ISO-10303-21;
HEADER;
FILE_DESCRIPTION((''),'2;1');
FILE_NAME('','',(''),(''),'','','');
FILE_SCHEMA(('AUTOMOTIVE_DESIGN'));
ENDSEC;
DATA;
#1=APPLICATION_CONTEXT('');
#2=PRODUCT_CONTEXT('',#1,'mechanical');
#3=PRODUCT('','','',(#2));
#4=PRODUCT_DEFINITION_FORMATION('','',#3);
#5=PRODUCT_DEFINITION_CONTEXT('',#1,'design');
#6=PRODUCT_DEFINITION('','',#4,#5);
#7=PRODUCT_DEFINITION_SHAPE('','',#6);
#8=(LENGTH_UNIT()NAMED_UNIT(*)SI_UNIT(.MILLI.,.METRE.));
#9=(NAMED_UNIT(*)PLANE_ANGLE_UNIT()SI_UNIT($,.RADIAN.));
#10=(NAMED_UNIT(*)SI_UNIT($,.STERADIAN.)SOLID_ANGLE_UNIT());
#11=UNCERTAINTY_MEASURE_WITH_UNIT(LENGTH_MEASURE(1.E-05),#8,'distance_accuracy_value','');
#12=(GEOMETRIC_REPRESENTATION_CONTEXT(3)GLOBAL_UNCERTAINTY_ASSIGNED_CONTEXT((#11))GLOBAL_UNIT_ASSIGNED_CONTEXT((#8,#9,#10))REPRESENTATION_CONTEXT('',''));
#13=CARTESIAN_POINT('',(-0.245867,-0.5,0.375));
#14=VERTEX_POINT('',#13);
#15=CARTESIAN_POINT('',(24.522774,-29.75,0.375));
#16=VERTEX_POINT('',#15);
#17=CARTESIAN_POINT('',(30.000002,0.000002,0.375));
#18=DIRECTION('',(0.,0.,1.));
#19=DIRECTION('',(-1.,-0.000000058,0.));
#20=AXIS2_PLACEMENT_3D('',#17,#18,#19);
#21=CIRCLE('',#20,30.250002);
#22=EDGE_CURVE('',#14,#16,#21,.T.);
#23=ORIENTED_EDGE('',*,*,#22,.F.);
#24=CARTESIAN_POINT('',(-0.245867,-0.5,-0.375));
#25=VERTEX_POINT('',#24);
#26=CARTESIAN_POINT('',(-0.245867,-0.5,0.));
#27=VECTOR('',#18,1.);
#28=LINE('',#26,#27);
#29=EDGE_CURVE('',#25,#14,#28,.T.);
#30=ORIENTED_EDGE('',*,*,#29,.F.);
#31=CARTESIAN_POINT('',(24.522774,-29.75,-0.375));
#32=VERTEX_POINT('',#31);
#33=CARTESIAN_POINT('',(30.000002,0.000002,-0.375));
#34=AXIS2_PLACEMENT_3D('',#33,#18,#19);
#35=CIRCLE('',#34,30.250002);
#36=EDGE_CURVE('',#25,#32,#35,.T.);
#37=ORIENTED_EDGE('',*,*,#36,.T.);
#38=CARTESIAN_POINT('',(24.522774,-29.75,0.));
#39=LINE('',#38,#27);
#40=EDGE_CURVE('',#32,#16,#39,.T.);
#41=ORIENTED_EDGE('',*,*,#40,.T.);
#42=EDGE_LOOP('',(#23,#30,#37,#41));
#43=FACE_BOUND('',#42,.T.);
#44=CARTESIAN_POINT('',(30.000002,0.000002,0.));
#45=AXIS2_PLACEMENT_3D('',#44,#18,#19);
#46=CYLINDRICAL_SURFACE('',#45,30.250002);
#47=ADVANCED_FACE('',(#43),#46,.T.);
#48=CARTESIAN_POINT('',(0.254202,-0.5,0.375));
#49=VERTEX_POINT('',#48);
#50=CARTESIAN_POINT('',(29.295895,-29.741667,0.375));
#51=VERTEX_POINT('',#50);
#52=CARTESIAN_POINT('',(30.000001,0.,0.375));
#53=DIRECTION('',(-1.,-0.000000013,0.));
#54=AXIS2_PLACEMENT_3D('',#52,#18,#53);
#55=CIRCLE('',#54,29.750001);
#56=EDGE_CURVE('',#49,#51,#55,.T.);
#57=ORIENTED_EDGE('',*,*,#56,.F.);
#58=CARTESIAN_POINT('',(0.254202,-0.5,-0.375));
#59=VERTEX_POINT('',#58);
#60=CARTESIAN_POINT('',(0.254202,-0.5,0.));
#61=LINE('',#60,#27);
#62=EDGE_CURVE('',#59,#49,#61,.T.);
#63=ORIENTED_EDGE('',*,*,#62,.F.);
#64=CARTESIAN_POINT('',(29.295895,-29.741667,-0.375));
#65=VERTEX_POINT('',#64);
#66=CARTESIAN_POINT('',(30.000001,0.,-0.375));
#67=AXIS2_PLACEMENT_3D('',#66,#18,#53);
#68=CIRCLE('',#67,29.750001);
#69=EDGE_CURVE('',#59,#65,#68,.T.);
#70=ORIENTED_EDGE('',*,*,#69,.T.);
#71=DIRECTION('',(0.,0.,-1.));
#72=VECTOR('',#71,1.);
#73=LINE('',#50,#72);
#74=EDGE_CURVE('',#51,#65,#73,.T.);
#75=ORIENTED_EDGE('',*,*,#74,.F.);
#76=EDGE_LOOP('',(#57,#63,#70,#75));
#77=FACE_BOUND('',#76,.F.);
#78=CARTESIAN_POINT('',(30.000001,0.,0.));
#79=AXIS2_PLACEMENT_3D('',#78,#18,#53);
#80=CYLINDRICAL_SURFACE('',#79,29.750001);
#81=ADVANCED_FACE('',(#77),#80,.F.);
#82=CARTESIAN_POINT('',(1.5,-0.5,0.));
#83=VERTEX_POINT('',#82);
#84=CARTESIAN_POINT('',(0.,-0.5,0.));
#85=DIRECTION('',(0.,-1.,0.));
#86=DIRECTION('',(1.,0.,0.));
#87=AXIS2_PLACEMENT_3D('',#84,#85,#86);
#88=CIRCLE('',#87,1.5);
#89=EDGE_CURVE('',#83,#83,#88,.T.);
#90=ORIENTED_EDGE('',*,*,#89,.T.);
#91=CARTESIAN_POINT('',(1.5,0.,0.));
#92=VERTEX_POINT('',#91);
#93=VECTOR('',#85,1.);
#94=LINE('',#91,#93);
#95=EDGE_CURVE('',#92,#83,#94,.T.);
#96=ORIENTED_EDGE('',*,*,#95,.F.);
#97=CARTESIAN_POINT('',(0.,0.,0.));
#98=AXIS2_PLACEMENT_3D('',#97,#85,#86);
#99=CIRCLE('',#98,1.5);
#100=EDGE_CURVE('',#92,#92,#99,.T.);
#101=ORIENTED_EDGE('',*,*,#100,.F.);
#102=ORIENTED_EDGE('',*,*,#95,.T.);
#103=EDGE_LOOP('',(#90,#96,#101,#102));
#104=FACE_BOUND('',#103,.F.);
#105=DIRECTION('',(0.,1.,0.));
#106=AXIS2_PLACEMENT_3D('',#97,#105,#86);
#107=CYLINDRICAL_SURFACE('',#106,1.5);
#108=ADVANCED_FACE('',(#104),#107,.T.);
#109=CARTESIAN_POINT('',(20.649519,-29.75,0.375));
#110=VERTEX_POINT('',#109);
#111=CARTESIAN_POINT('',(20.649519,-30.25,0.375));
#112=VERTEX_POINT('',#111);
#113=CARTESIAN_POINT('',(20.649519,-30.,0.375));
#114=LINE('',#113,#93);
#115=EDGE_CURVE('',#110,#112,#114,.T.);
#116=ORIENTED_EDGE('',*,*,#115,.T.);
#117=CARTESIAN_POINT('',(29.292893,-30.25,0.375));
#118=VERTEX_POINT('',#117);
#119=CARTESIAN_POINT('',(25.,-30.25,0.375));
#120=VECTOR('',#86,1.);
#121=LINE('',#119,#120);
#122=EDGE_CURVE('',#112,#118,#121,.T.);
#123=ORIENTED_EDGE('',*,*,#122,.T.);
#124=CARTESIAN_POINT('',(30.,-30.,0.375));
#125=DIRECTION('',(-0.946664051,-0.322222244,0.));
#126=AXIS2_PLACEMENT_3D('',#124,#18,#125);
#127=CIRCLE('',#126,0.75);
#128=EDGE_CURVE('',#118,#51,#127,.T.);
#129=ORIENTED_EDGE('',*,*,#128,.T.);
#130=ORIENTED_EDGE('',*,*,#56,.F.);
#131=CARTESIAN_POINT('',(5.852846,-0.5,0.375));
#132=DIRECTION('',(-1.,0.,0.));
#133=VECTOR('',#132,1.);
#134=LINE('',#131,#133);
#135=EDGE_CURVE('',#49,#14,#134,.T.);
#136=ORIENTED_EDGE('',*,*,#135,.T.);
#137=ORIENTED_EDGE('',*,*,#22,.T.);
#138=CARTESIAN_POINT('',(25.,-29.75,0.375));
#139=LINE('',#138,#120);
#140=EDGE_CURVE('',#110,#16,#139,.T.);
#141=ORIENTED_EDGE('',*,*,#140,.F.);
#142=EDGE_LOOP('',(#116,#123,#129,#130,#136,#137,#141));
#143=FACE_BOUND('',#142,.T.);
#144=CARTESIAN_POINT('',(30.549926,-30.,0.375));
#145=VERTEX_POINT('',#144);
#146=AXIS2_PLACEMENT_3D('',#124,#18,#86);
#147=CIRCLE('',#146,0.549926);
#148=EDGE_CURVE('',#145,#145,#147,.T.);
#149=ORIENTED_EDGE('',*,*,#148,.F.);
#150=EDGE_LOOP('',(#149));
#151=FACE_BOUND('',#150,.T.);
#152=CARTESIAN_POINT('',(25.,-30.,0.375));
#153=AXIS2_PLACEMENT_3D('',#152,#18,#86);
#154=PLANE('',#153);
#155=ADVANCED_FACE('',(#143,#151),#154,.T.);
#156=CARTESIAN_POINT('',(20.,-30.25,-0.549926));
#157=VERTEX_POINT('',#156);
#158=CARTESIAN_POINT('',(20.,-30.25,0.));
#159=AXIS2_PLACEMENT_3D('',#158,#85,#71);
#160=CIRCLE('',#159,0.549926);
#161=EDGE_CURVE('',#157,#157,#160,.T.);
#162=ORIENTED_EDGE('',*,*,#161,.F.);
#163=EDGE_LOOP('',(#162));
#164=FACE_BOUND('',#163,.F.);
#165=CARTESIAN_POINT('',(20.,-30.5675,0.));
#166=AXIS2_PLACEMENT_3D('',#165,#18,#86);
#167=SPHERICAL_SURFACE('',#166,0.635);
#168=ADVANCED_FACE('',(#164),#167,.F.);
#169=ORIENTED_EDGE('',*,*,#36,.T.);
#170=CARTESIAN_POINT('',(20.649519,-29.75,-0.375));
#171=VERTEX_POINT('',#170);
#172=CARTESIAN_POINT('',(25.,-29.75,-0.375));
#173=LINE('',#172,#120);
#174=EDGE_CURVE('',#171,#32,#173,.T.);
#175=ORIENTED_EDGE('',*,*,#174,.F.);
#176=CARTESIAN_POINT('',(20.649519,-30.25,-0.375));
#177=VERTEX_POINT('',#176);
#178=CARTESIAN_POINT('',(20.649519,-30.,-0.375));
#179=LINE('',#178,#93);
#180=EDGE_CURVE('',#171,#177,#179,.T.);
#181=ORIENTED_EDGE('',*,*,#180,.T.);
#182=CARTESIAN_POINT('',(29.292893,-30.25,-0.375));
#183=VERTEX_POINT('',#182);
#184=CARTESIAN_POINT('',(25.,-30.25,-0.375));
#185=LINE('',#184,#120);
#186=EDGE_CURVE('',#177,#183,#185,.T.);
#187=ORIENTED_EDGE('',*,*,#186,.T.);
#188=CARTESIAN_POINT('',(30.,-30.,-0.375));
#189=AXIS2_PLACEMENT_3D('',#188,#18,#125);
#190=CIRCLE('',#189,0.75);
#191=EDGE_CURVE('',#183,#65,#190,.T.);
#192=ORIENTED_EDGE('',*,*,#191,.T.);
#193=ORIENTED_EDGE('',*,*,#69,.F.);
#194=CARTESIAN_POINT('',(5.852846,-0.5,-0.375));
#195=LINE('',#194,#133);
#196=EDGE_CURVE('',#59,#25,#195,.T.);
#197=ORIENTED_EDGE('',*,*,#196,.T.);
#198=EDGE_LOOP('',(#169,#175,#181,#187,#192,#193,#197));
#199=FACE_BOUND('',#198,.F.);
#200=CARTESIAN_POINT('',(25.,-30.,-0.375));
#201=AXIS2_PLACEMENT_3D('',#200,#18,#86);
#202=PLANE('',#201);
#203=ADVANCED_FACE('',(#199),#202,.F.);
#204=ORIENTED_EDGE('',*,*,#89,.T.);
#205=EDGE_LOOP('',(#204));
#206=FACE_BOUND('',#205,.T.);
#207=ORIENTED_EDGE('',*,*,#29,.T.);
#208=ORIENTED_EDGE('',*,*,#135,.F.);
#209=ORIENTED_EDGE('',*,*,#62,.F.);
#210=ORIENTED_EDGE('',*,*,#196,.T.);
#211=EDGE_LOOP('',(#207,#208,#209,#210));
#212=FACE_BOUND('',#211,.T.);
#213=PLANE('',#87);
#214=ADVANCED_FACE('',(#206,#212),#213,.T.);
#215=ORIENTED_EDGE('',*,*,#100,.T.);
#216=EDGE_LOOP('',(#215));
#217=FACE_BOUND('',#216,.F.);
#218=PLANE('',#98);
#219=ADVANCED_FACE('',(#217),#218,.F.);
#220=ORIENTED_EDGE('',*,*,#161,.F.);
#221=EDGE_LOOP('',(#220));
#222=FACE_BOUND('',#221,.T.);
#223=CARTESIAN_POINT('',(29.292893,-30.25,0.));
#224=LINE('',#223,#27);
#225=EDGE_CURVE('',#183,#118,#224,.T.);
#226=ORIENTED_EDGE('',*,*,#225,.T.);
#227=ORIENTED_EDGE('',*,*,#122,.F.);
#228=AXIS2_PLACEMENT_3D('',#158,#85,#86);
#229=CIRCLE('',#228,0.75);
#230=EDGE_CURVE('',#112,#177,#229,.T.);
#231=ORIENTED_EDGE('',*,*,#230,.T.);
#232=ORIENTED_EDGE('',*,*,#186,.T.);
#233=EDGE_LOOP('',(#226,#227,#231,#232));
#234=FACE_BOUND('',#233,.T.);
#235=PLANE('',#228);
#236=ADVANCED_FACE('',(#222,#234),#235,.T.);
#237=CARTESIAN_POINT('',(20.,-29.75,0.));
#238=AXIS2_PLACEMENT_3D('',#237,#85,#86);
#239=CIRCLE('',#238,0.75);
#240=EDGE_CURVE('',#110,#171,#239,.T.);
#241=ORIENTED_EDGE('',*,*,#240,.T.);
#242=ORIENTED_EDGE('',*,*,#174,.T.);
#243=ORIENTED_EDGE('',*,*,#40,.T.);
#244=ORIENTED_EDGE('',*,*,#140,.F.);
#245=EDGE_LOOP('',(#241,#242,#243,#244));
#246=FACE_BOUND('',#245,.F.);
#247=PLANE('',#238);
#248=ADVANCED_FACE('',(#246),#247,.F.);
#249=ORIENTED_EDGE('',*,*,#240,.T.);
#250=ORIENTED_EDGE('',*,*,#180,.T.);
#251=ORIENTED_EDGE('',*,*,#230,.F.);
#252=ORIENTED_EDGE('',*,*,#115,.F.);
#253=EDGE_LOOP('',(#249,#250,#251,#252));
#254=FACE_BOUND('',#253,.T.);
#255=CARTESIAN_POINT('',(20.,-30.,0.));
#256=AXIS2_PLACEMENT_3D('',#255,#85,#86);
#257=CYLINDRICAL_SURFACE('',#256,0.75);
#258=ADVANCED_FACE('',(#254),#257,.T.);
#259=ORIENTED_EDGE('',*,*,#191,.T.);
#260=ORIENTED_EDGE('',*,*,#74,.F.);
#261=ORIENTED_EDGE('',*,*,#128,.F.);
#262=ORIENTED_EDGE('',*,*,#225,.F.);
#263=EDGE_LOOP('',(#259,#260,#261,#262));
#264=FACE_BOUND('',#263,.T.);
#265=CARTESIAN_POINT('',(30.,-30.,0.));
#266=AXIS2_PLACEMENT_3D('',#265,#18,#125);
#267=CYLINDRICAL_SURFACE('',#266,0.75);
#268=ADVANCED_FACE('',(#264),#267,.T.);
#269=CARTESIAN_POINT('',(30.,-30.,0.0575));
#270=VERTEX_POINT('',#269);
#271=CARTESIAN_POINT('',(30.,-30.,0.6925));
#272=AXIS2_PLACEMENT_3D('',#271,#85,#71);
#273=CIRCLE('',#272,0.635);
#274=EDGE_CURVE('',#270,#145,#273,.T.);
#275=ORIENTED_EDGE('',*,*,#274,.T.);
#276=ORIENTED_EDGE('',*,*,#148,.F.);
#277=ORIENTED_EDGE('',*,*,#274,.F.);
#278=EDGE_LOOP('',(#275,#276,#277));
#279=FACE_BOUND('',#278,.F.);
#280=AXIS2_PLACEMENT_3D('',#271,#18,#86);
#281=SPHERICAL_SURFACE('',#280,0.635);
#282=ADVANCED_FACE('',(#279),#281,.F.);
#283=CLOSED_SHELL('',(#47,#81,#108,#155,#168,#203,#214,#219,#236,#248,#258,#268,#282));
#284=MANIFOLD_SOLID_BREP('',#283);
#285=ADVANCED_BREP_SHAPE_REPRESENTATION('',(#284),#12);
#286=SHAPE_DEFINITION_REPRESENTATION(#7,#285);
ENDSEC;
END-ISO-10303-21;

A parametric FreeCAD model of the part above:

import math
import FreeCAD as App
import Part
import Sketcher

V = App.Vector
Q = App.Units.Quantity


def add_polygon(sketch, points):
    """Adds a closed chain of lines whose ends are joined by coincident constraints."""
    first, n = sketch.GeometryCount, len(points)
    for a, b in zip(points, points[1:] + points[:1]):
        sketch.addGeometry(Part.LineSegment(App.Vector(*a, 0), App.Vector(*b, 0)), False)
    for i in range(n):
        sketch.addConstraint(Sketcher.Constraint("Coincident", first + i, 2, first + (i + 1) % n, 1))

doc = App.newDocument("Part")
body = doc.addObject("PartDesign::Body", "Body")

# Sketch on XY plane
sketch1 = doc.addObject("Sketcher::SketchObject", "Sketch")
body.addObject(sketch1)
sketch1.AttachmentSupport = (doc.XY_Plane, [""])
sketch1.MapMode = "FlatFace"
sketch1.addGeometry(Part.LineSegment(V(0.25, 0, 0), V(-0.25, 0, 0)), False)
sketch1.addGeometry(Part.ArcOfCircle(Part.Circle(V(30.000002, 0.000002, 0), V(0, 0, 1), 30.250002), math.radians(-179.999997), math.radians(-91.344917)), False)
sketch1.addGeometry(Part.ArcOfCircle(Part.Circle(V(30, -30, 0), V(0, 0, 1), 0.75), math.radians(-161.20263), math.radians(159.852116)), False)
sketch1.addGeometry(Part.ArcOfCircle(Part.Circle(V(30.000001, 0, 0), V(0, 0, 1), 29.750001), math.radians(-179.999999), math.radians(-91.35617)), False)
sketch1.addConstraint(Sketcher.Constraint("Coincident", 0, 2, 1, 1))
sketch1.addConstraint(Sketcher.Constraint("Coincident", 1, 2, 2, 1))
sketch1.addConstraint(Sketcher.Constraint("Coincident", 2, 2, 3, 2))
sketch1.addConstraint(Sketcher.Constraint("Coincident", 3, 1, 0, 1))
sketch1.addConstraint(Sketcher.Constraint("Horizontal", 0))
sketch1.addConstraint(Sketcher.Constraint("Coincident", 3, 3, 1, 3))
sketch1.addConstraint(Sketcher.Constraint("Symmetric", 0, 2, 3, 1, -1, 1))
sketch1.addConstraint(Sketcher.Constraint("PointOnObject", 1, 3, -1))
sketch1.addConstraint(Sketcher.Constraint("Vertical", 2, 3, 3, 3))
sketch1.addConstraint(Sketcher.Constraint("Radius", 2, Q("0.75 mm")))
sketch1.addConstraint(Sketcher.Constraint("Radius", 3, Q("29.750001 mm")))
sketch1.addConstraint(Sketcher.Constraint("DistanceX", 0, 2, 0, 1, Q("0.5 mm")))
sketch1.addConstraint(Sketcher.Constraint("DistanceY", 2, 3, -1, 1, Q("30 mm")))
pad1 = doc.addObject("PartDesign::Pad", "Pad")
body.addObject(pad1)
pad1.Profile = sketch1
pad1.Length = 0.75
pad1.Midplane = True

# Sketch on XZ plane
sketch2 = doc.addObject("Sketcher::SketchObject", "Sketch001")
body.addObject(sketch2)
sketch2.AttachmentSupport = (doc.XZ_Plane, [""])
sketch2.MapMode = "FlatFace"
sketch2.addGeometry(Part.Circle(V(0, 0, 0), V(0, 0, 1), 1.5), False)
sketch2.addConstraint(Sketcher.Constraint("Coincident", 0, 3, -1, 1))
sketch2.addConstraint(Sketcher.Constraint("Diameter", 0, Q("3 mm")))
pad2 = doc.addObject("PartDesign::Pad", "Pad001")
body.addObject(pad2)
pad2.Profile = sketch2
pad2.Length = 0.5

# Sketch on XY plane
sketch3 = doc.addObject("Sketcher::SketchObject", "Sketch002")
body.addObject(sketch3)
sketch3.AttachmentSupport = (doc.XY_Plane, [""])
sketch3.MapMode = "FlatFace"
add_polygon(sketch3, [(20, -29.75), (20, -30.25), (30, -30.25), (30, -29.75)])  # lines 0-3
sketch3.addConstraint(Sketcher.Constraint("Vertical", 0))
sketch3.addConstraint(Sketcher.Constraint("Horizontal", 1))
sketch3.addConstraint(Sketcher.Constraint("Vertical", 2))
sketch3.addConstraint(Sketcher.Constraint("Horizontal", 3))
sketch3.addConstraint(Sketcher.Constraint("DistanceX", 1, 1, 1, 2, Q("10 mm")))
sketch3.addConstraint(Sketcher.Constraint("DistanceY", 0, 2, 0, 1, Q("0.5 mm")))
sketch3.addConstraint(Sketcher.Constraint("DistanceX", -1, 1, 0, 2, Q("20 mm")))
sketch3.addConstraint(Sketcher.Constraint("DistanceY", 0, 2, -1, 1, Q("30.25 mm")))
pad3 = doc.addObject("PartDesign::Pad", "Pad002")
body.addObject(pad3)
pad3.Profile = sketch3
pad3.Length = 0.75
pad3.Midplane = True

# Sketch on XZ plane
sketch4 = doc.addObject("Sketcher::SketchObject", "Sketch003")
body.addObject(sketch4)
sketch4.AttachmentSupport = (doc.XZ_Plane, [""])
sketch4.MapMode = "FlatFace"
sketch4.AttachmentOffset = App.Placement(V(0, 0, 30), App.Rotation())
sketch4.addGeometry(Part.ArcOfCircle(Part.Circle(V(30, 0.6925, 0), V(0, 0, 1), 0.635), math.radians(-90), math.radians(90)), False)
sketch4.addGeometry(Part.LineSegment(V(30, 1.3275, 0), V(30, 0.0575, 0)), False)
sketch4.addGeometry(Part.LineSegment(V(30, 0.0575, 0), V(30, 1.3275, 0)), True)  # axis
sketch4.addConstraint(Sketcher.Constraint("Coincident", 0, 1, 1, 2))
sketch4.addConstraint(Sketcher.Constraint("Coincident", 1, 1, 0, 2))
sketch4.addConstraint(Sketcher.Constraint("Vertical", 1))
sketch4.addConstraint(Sketcher.Constraint("Vertical", 2))
sketch4.addConstraint(Sketcher.Constraint("Coincident", 2, 1, 0, 1))
sketch4.addConstraint(Sketcher.Constraint("Equal", 1, 2))
sketch4.addConstraint(Sketcher.Constraint("DistanceX", -1, 1, 0, 3, Q("30 mm")))
sketch4.addConstraint(Sketcher.Constraint("DistanceX", -1, 1, 0, 1, Q("30 mm")))
sketch4.addConstraint(Sketcher.Constraint("Radius", 0, Q("0.635 mm")))
sketch4.addConstraint(Sketcher.Constraint("DistanceY", -1, 1, 0, 3, Q("0.6925 mm")))
groove = doc.addObject("PartDesign::Groove", "Groove")
body.addObject(groove)
groove.Profile = sketch4
groove.ReferenceAxis = (sketch4, ["Axis0"])
groove.Angle = 360

# Sketch on XZ plane
sketch5 = doc.addObject("Sketcher::SketchObject", "Sketch004")
body.addObject(sketch5)
sketch5.AttachmentSupport = (doc.XZ_Plane, [""])
sketch5.MapMode = "FlatFace"
sketch5.AttachmentOffset = App.Placement(V(0, 0, 30), App.Rotation())
sketch5.addGeometry(Part.Circle(V(20, 0, 0), V(0, 0, 1), 0.75), False)
sketch5.addConstraint(Sketcher.Constraint("PointOnObject", 0, 3, -1))
sketch5.addConstraint(Sketcher.Constraint("Diameter", 0, Q("1.5 mm")))
sketch5.addConstraint(Sketcher.Constraint("DistanceX", -1, 1, 0, 3, Q("20 mm")))
pad4 = doc.addObject("PartDesign::Pad", "Pad003")
body.addObject(pad4)
pad4.Profile = sketch5
pad4.Length = 0.5
pad4.Midplane = True

# Sketch on XZ plane
sketch6 = doc.addObject("Sketcher::SketchObject", "Sketch005")
body.addObject(sketch6)
sketch6.AttachmentSupport = (doc.XZ_Plane, [""])
sketch6.MapMode = "FlatFace"
sketch6.AttachmentOffset = App.Placement(V(0, 0, 30.5675), App.Rotation())
sketch6.addGeometry(Part.ArcOfCircle(Part.Circle(V(20, 0, 0), V(0, 0, 1), 0.635), math.radians(-90), math.radians(90)), False)
sketch6.addGeometry(Part.LineSegment(V(20, 0.635, 0), V(20, -0.635, 0)), False)
sketch6.addGeometry(Part.LineSegment(V(20, -0.635, 0), V(20, 0.635, 0)), True)  # axis
sketch6.addConstraint(Sketcher.Constraint("Coincident", 0, 1, 1, 2))
sketch6.addConstraint(Sketcher.Constraint("Coincident", 1, 1, 0, 2))
sketch6.addConstraint(Sketcher.Constraint("Vertical", 1))
sketch6.addConstraint(Sketcher.Constraint("Vertical", 2))
sketch6.addConstraint(Sketcher.Constraint("Coincident", 2, 1, 0, 1))
sketch6.addConstraint(Sketcher.Constraint("PointOnObject", 0, 3, -1))
sketch6.addConstraint(Sketcher.Constraint("Equal", 1, 2))
sketch6.addConstraint(Sketcher.Constraint("DistanceX", -1, 1, 0, 3, Q("20 mm")))
sketch6.addConstraint(Sketcher.Constraint("DistanceX", -1, 1, 0, 1, Q("20 mm")))
sketch6.addConstraint(Sketcher.Constraint("Radius", 0, Q("0.635 mm")))
groove2 = doc.addObject("PartDesign::Groove", "Groove001")
body.addObject(groove2)
groove2.Profile = sketch6
groove2.ReferenceAxis = (sketch6, ["Axis0"])
groove2.Angle = 360

doc.recompute()
